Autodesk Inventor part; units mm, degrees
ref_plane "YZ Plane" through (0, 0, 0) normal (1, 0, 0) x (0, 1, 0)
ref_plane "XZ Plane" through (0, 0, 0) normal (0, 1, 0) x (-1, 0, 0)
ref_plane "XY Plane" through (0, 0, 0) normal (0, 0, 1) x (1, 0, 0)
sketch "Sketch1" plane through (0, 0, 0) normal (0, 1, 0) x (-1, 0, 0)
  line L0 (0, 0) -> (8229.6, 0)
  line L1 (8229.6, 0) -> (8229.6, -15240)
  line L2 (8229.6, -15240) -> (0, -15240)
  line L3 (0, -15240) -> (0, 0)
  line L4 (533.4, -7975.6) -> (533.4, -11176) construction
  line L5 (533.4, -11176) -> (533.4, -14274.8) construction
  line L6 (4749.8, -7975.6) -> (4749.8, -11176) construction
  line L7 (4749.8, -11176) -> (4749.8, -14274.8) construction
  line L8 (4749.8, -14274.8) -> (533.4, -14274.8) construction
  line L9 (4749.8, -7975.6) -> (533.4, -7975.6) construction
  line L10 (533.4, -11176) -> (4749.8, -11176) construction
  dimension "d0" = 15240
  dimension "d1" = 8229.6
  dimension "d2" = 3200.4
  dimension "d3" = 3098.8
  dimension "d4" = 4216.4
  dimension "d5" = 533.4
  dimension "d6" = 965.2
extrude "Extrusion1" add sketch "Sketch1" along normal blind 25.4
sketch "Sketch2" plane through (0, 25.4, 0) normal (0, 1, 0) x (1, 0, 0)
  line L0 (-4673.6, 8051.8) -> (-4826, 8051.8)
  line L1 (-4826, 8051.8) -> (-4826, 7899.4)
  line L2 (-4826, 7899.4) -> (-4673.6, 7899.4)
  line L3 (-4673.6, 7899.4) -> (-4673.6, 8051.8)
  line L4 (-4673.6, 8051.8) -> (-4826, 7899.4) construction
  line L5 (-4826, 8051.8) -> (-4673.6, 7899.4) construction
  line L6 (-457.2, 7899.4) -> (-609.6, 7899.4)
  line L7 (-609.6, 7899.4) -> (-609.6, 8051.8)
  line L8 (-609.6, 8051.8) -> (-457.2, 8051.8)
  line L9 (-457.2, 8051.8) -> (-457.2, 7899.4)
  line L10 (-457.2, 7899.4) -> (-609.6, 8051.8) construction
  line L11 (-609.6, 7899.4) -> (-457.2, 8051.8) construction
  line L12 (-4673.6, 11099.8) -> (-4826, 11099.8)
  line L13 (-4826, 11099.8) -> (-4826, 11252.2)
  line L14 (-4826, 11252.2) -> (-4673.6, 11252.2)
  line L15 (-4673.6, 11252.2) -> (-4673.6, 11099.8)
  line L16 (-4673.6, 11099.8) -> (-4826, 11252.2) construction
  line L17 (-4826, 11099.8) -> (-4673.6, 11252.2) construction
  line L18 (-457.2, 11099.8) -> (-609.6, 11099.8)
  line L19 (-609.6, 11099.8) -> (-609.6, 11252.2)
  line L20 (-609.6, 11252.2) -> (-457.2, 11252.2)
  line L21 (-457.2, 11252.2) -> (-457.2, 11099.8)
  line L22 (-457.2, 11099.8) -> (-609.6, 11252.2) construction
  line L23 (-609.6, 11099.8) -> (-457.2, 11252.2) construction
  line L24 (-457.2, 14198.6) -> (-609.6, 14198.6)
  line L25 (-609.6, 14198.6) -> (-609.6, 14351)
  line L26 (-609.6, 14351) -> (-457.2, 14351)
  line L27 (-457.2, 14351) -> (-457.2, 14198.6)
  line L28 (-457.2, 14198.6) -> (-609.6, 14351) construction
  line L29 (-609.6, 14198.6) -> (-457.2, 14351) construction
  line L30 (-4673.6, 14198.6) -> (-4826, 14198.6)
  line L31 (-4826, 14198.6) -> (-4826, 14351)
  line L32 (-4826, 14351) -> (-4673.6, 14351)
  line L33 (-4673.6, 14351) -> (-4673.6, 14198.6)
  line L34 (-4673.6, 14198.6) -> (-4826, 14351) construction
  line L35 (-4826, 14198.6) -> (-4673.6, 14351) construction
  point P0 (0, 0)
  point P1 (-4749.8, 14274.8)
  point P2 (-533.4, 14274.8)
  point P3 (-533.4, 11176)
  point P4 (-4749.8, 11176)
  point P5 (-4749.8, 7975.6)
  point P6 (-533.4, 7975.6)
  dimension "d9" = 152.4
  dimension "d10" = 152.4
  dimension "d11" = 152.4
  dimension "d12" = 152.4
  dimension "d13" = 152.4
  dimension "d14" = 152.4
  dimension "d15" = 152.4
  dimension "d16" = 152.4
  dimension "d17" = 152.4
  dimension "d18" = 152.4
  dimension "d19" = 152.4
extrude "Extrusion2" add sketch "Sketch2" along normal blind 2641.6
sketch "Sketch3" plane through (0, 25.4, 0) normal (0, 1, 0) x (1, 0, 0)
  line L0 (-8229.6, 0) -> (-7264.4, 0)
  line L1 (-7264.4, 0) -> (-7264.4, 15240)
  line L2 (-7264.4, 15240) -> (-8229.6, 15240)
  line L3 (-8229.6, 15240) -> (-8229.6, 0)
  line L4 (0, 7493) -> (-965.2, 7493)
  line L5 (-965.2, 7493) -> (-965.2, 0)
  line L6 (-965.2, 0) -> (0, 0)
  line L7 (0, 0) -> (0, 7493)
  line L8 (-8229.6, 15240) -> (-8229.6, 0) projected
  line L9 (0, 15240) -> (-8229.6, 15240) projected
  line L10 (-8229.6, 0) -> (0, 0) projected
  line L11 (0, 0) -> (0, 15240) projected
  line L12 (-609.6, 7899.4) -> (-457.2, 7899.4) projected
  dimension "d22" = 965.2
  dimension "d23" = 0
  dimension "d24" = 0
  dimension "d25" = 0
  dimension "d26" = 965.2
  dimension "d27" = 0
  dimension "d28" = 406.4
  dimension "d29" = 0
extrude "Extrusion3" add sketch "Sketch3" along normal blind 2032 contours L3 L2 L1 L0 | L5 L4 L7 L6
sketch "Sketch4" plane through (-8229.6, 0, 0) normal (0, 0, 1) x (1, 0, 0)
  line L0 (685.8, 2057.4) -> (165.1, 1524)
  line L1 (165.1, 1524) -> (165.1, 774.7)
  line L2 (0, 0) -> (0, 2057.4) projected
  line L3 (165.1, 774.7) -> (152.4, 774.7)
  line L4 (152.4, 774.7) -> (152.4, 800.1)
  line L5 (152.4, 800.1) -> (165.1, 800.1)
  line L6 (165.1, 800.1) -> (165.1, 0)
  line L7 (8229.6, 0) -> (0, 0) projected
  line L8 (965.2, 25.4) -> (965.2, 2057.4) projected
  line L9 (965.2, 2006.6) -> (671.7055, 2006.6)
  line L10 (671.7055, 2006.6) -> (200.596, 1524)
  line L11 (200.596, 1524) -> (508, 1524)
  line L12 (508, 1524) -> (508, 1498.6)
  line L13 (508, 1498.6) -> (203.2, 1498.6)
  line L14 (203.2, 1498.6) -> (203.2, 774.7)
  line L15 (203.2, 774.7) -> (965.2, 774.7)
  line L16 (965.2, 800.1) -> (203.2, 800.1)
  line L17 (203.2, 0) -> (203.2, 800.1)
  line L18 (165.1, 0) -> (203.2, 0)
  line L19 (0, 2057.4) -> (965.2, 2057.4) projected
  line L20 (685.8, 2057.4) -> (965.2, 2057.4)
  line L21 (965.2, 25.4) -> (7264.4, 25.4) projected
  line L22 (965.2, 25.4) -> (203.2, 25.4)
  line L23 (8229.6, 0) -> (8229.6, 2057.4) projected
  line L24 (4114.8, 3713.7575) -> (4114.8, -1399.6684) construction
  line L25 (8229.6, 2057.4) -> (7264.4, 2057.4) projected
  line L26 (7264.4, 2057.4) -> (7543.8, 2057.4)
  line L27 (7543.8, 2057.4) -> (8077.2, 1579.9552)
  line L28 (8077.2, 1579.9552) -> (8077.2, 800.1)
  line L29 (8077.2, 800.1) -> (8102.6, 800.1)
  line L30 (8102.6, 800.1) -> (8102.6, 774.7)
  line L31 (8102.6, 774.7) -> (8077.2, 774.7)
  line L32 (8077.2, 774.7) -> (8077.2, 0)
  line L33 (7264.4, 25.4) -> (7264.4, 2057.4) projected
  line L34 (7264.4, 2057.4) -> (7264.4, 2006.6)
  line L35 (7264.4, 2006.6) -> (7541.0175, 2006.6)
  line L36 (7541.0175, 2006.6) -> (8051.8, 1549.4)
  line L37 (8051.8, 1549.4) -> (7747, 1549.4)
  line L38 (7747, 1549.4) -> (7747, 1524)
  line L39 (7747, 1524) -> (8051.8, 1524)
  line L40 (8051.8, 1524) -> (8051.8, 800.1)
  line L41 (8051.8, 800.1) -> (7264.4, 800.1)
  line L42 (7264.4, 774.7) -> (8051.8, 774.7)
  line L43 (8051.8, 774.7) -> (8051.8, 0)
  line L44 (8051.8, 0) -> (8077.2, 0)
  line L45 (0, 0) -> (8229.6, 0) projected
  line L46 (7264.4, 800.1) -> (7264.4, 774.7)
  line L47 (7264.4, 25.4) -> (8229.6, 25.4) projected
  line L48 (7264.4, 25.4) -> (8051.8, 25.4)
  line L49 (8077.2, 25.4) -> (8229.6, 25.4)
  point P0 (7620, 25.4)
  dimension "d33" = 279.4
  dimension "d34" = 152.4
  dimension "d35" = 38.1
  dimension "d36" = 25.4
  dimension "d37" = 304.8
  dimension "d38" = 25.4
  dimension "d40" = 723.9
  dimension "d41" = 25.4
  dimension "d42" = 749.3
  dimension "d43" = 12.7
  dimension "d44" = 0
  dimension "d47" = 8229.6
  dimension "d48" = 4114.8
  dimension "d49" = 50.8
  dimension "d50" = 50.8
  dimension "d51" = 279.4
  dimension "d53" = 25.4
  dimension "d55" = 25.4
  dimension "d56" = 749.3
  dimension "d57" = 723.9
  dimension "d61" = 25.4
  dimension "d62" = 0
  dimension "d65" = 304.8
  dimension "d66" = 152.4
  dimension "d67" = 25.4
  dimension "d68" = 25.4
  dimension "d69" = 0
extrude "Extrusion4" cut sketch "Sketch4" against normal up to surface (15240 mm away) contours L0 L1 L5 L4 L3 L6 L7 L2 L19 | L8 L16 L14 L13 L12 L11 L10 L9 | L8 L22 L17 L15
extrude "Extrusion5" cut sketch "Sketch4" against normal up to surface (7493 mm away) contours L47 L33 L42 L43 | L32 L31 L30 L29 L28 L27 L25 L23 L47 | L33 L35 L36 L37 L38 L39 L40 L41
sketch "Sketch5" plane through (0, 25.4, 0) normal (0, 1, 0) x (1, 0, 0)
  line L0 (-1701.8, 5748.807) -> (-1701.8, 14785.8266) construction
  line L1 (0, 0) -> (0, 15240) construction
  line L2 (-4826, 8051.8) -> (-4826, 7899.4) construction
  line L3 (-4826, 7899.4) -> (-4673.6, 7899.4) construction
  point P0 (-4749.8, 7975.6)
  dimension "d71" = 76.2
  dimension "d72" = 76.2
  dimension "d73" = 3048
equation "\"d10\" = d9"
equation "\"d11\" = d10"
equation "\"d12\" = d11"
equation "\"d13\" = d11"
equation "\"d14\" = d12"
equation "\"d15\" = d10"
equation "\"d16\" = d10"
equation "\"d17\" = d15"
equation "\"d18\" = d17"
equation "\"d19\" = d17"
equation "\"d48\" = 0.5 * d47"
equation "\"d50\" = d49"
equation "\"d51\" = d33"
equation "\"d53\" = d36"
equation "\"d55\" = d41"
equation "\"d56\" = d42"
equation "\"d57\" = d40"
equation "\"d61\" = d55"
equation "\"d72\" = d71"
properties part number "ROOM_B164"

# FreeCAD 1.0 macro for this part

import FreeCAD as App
import Part
import Sketcher
Q = App.Units.Quantity


def add_polygon(sketch, points):
    """Adds a closed chain of lines whose ends are joined by coincident constraints."""
    first, n = sketch.GeometryCount, len(points)
    for a, b in zip(points, points[1:] + points[:1]):
        sketch.addGeometry(Part.LineSegment(App.Vector(*a, 0), App.Vector(*b, 0)), False)
    for i in range(n):
        sketch.addConstraint(Sketcher.Constraint("Coincident", first + i, 2, first + (i + 1) % n, 1))

doc = App.newDocument("Part")
body = doc.addObject("PartDesign::Body", "Body")

# Sketch on XZ plane
sketch1 = doc.addObject("Sketcher::SketchObject", "Sketch")
body.addObject(sketch1)
sketch1.AttachmentSupport = (doc.XZ_Plane, [""])
sketch1.MapMode = "FlatFace"
add_polygon(sketch1, [(-8230, 0), (0, 0), (0, -15240), (-8230, -15240)])  # lines 0-3
sketch1.addConstraint([
    Sketcher.Constraint("Horizontal", 0),
    Sketcher.Constraint("Vertical", 1),
    Sketcher.Constraint("Horizontal", 2),
    Sketcher.Constraint("Vertical", 3),
    Sketcher.Constraint("Coincident", 0, 2, -1, 1),
    Sketcher.Constraint("DistanceX", 0, 1, 0, 2, Q("324 in")),
    Sketcher.Constraint("DistanceY", 1, 2, 1, 1, Q("600 in")),
])
pad1 = doc.addObject("PartDesign::Pad", "Pad")
body.addObject(pad1)
pad1.Profile = sketch1
pad1.Length = Q("1 in")
pad1.Reversed = True

# Sketch on XZ plane
sketch2 = doc.addObject("Sketcher::SketchObject", "Sketch001")
body.addObject(sketch2)
sketch2.AttachmentSupport = (doc.XZ_Plane, [""])
sketch2.MapMode = "FlatFace"
sketch2.AttachmentOffset = App.Placement(App.Vector(0, 0, -1 * 25.4), App.Rotation())
add_polygon(sketch2, [(-4674, -7899), (-4674, -8052), (-4826, -8052), (-4826, -7899)])  # lines 0-3
add_polygon(sketch2, [(-610, -7899), (-457, -7899), (-457, -8052), (-610, -8052)])  # lines 4-7
add_polygon(sketch2, [(-4826, -11100), (-4674, -11100), (-4674, -11252), (-4826, -11252)])  # lines 8-11
add_polygon(sketch2, [(-610, -11100), (-457, -11100), (-457, -11252), (-610, -11252)])  # lines 12-15
add_polygon(sketch2, [(-610, -14199), (-457, -14199), (-457, -14351), (-610, -14351)])  # lines 16-19
add_polygon(sketch2, [(-4826, -14199), (-4674, -14199), (-4674, -14351), (-4826, -14351)])  # lines 20-23
sketch2.addConstraint([
    Sketcher.Constraint("Vertical", 0),
    Sketcher.Constraint("Horizontal", 1),
    Sketcher.Constraint("Vertical", 2),
    Sketcher.Constraint("Horizontal", 3),
    Sketcher.Constraint("Horizontal", 4),
    Sketcher.Constraint("Vertical", 5),
    Sketcher.Constraint("Horizontal", 6),
    Sketcher.Constraint("Vertical", 7),
    Sketcher.Constraint("Horizontal", 8),
    Sketcher.Constraint("Vertical", 9),
    Sketcher.Constraint("Horizontal", 10),
    Sketcher.Constraint("Vertical", 11),
    Sketcher.Constraint("Horizontal", 12),
    Sketcher.Constraint("Vertical", 13),
    Sketcher.Constraint("Horizontal", 14),
    Sketcher.Constraint("Vertical", 15),
    Sketcher.Constraint("Horizontal", 16),
    Sketcher.Constraint("Vertical", 17),
    Sketcher.Constraint("Horizontal", 18),
    Sketcher.Constraint("Vertical", 19),
    Sketcher.Constraint("Horizontal", 20),
    Sketcher.Constraint("Vertical", 21),
    Sketcher.Constraint("Horizontal", 22),
    Sketcher.Constraint("Vertical", 23),
    Sketcher.Constraint("Horizontal", 3, 2, 4, 2),
    Sketcher.Constraint("Horizontal", 1, 2, 5, 2),
    Sketcher.Constraint("Horizontal", 11, 2, 12, 2),
    Sketcher.Constraint("Horizontal", 10, 2, 13, 2),
    Sketcher.Constraint("Horizontal", 19, 2, 20, 2),
    Sketcher.Constraint("Horizontal", 18, 2, 21, 2),
    Sketcher.Constraint("Vertical", 3, 2, 8, 2),
    Sketcher.Constraint("Vertical", 2, 2, 10, 2),
    Sketcher.Constraint("Vertical", 5, 2, 12, 2),
    Sketcher.Constraint("Vertical", 7, 2, 14, 2),
    Sketcher.Constraint("Vertical", 13, 2, 16, 2),
    Sketcher.Constraint("Vertical", 15, 2, 18, 2),
    Sketcher.Constraint("Vertical", 9, 2, 20, 2),
    Sketcher.Constraint("Vertical", 11, 2, 22, 2),
    Sketcher.Constraint("Equal", 3, 4),
    Sketcher.Constraint("Equal", 22, 0),
    Sketcher.Constraint("Equal", 7, 9),
    Sketcher.Constraint("Equal", 15, 17),
    Sketcher.Constraint("DistanceX", 1, 2, 1, 1, Q("6 in")),
    Sketcher.Constraint("DistanceX", 0, 2, -1, 1, Q("184 in")),
    Sketcher.Constraint("DistanceY", 0, 2, -1, 1, Q("317 in")),
    Sketcher.Constraint("DistanceX", 4, 2, -1, 1, Q("18 in")),
    Sketcher.Constraint("DistanceY", 8, 2, -1, 1, Q("437 in")),
    Sketcher.Constraint("DistanceY", 16, 2, -1, 1, Q("559 in")),
])
pad2 = doc.addObject("PartDesign::Pad", "Pad001")
body.addObject(pad2)
pad2.Profile = sketch2
pad2.Length = Q("104 in")
pad2.Reversed = True

# Sketch on XZ plane
sketch3 = doc.addObject("Sketcher::SketchObject", "Sketch002")
body.addObject(sketch3)
sketch3.AttachmentSupport = (doc.XZ_Plane, [""])
sketch3.MapMode = "FlatFace"
sketch3.AttachmentOffset = App.Placement(App.Vector(0, 0, -1 * 25.4), App.Rotation())
add_polygon(sketch3, [(-8230, -15240), (-8230, 0), (-7264, 0), (-7264, -15240)])  # lines 0-3
add_polygon(sketch3, [(-965, -7493), (-965, 0), (0, 0), (0, -7493)])  # lines 4-7
sketch3.addConstraint([
    Sketcher.Constraint("Vertical", 0),
    Sketcher.Constraint("Horizontal", 1),
    Sketcher.Constraint("Vertical", 2),
    Sketcher.Constraint("Horizontal", 3),
    Sketcher.Constraint("Vertical", 4),
    Sketcher.Constraint("Horizontal", 5),
    Sketcher.Constraint("Vertical", 6),
    Sketcher.Constraint("Horizontal", 7),
    Sketcher.Constraint("Coincident", 5, 2, -1, 1),
    Sketcher.Constraint("PointOnObject", 0, 2, -1),
    Sketcher.Constraint("Equal", 3, 5),
    Sketcher.Constraint("DistanceX", 1, 1, 1, 2, Q("38 in")),
    Sketcher.Constraint("DistanceY", 0, 1, 0, 2, Q("600 in")),
    Sketcher.Constraint("DistanceY", 4, 1, 4, 2, Q("295 in")),
    Sketcher.Constraint("DistanceX", 0, 2, -1, 1, Q("324 in")),
])
pad3 = doc.addObject("PartDesign::Pad", "Pad002")
body.addObject(pad3)
pad3.Profile = sketch3
pad3.Length = Q("80 in")
pad3.Reversed = True

# Sketch on XY plane
sketch4 = doc.addObject("Sketcher::SketchObject", "Sketch003")
body.addObject(sketch4)
sketch4.AttachmentSupport = (doc.XY_Plane, [""])
sketch4.MapMode = "FlatFace"
add_polygon(sketch4, [(-8064, 1524), (-7544, 2057), (-8230, 2057), (-8230, 0), (-8064, 0), (-8064, 775), (-8077, 775), (-8077, 800), (-8064, 800)])  # lines 0-8
add_polygon(sketch4, [(-7264, 800), (-7264, 2007), (-7558, 2007), (-8029, 1524), (-7722, 1524), (-7722, 1499), (-8026, 1499), (-8026, 800)])  # lines 9-16
add_polygon(sketch4, [(-7264, 25), (-7264, 775), (-8026, 775), (-8026, 25)])  # lines 17-20
sketch4.addConstraint([
    Sketcher.Constraint("Horizontal", 1),
    Sketcher.Constraint("Vertical", 2),
    Sketcher.Constraint("Horizontal", 3),
    Sketcher.Constraint("Vertical", 4),
    Sketcher.Constraint("Horizontal", 5),
    Sketcher.Constraint("Vertical", 6),
    Sketcher.Constraint("Horizontal", 7),
    Sketcher.Constraint("Vertical", 8),
    Sketcher.Constraint("Vertical", 9),
    Sketcher.Constraint("Horizontal", 10),
    Sketcher.Constraint("Horizontal", 12),
    Sketcher.Constraint("Vertical", 13),
    Sketcher.Constraint("Horizontal", 14),
    Sketcher.Constraint("Vertical", 15),
    Sketcher.Constraint("Horizontal", 16),
    Sketcher.Constraint("Vertical", 17),
    Sketcher.Constraint("Horizontal", 18),
    Sketcher.Constraint("Vertical", 19),
    Sketcher.Constraint("Horizontal", 20),
    Sketcher.Constraint("PointOnObject", 2, 2, -1),
    Sketcher.Constraint("Parallel", 0, 11),
    Sketcher.Constraint("Horizontal", 8, 2, 11, 2),
    Sketcher.Constraint("Horizontal", 7, 2, 15, 2),
    Sketcher.Constraint("Horizontal", 5, 2, 17, 2),
    Sketcher.Constraint("Vertical", 4, 2, 7, 2),
    Sketcher.Constraint("Vertical", 16, 2, 17, 2),
    Sketcher.Constraint("Vertical", 15, 2, 18, 2),
    Sketcher.Constraint("Equal", 6, 13),
    Sketcher.Constraint("DistanceX", 14, 2, 14, 1, Q("12 in")),
    Sketcher.Constraint("DistanceY", 6, 1, 6, 2, Q("1 in")),
    Sketcher.Constraint("DistanceX", 5, 2, 5, 1, Q("0.5 in")),
    Sketcher.Constraint("DistanceY", 8, 1, 8, 2, Q("28.5 in")),
    Sketcher.Constraint("DistanceY", 17, 1, 17, 2, Q("29.5 in")),
    Sketcher.Constraint("DistanceX", 1, 2, -1, 1, Q("324 in")),
    Sketcher.Constraint("DistanceY", -1, 1, 19, 2, Q("1 in")),
    Sketcher.Constraint("DistanceX", 2, 2, 5, 2, Q("6 in")),
    Sketcher.Constraint("DistanceX", 0, 2, 9, 2, Q("11 in")),
    Sketcher.Constraint("DistanceY", 9, 2, 0, 2, Q("2 in")),
    Sketcher.Constraint("DistanceX", 6, 2, 15, 2, Q("2 in")),
    Sketcher.Constraint("DistanceX", 1, 2, 1, 1, Q("27 in")),
    Sketcher.Constraint("DistanceY", 2, 2, 2, 1, Q("81 in")),
    Sketcher.Constraint("DistanceX", 10, 2, 10, 1, Q("11.5549 in")),
])
pocket1 = doc.addObject("PartDesign::Pocket", "Pocket")
body.addObject(pocket1)
pocket1.Profile = sketch4
pocket1.Length = Q("600 in")

# Sketch on XY plane
sketch5 = doc.addObject("Sketcher::SketchObject", "Sketch004")
body.addObject(sketch5)
sketch5.AttachmentSupport = (doc.XY_Plane, [""])
sketch5.MapMode = "FlatFace"
add_polygon(sketch5, [(-965, 25), (-178, 25), (-178, 775), (-965, 775)])  # lines 0-3
add_polygon(sketch5, [(-152, 775), (-152, 25), (0, 25), (0, 2057), (-686, 2057), (-152, 1580), (-152, 800), (-127, 800), (-127, 775)])  # lines 4-12
add_polygon(sketch5, [(-965, 2007), (-965, 800), (-178, 800), (-178, 1524), (-483, 1524), (-483, 1549), (-178, 1549), (-689, 2007)])  # lines 13-20
sketch5.addConstraint([
    Sketcher.Constraint("Horizontal", 0),
    Sketcher.Constraint("Vertical", 1),
    Sketcher.Constraint("Horizontal", 2),
    Sketcher.Constraint("Vertical", 3),
    Sketcher.Constraint("Vertical", 4),
    Sketcher.Constraint("Horizontal", 5),
    Sketcher.Constraint("Vertical", 6),
    Sketcher.Constraint("Horizontal", 7),
    Sketcher.Constraint("Vertical", 9),
    Sketcher.Constraint("Horizontal", 10),
    Sketcher.Constraint("Vertical", 11),
    Sketcher.Constraint("Horizontal", 12),
    Sketcher.Constraint("Vertical", 13),
    Sketcher.Constraint("Horizontal", 14),
    Sketcher.Constraint("Vertical", 15),
    Sketcher.Constraint("Horizontal", 16),
    Sketcher.Constraint("Vertical", 17),
    Sketcher.Constraint("Horizontal", 18),
    Sketcher.Constraint("Horizontal", 20),
    Sketcher.Constraint("PointOnObject", 5, 2, -2),
    Sketcher.Constraint("Parallel", 8, 19),
    Sketcher.Constraint("Horizontal", 3, 2, 4, 2),
    Sketcher.Constraint("Horizontal", 2, 2, 11, 2),
    Sketcher.Constraint("Horizontal", 10, 2, 13, 2),
    Sketcher.Constraint("Vertical", 4, 2, 8, 2),
    Sketcher.Constraint("Vertical", 3, 2, 13, 2),
    Sketcher.Constraint("Vertical", 1, 2, 14, 2),
    Sketcher.Constraint("Vertical", 15, 2, 18, 2),
    Sketcher.Constraint("Equal", 12, 11),
    Sketcher.Constraint("Equal", 11, 17),
    Sketcher.Constraint("DistanceX", 5, 1, 5, 2, Q("6 in")),
    Sketcher.Constraint("DistanceX", 10, 1, 10, 2, Q("1 in")),
    Sketcher.Constraint("DistanceX", 16, 2, 16, 1, Q("12 in")),
    Sketcher.Constraint("DistanceY", 1, 1, 1, 2, Q("29.5 in")),
    Sketcher.Constraint("DistanceY", 15, 1, 15, 2, Q("28.5 in")),
    Sketcher.Constraint("DistanceY", -1, 1, 0, 2, Q("1 in")),
    Sketcher.Constraint("DistanceX", 0, 2, 4, 2, Q("1 in")),
    Sketcher.Constraint("DistanceX", 2, 2, 7, 2, Q("11 in")),
    Sketcher.Constraint("DistanceY", 19, 2, 7, 2, Q("2 in")),
    Sketcher.Constraint("DistanceX", 0, 1, 0, 2, Q("31 in")),
    Sketcher.Constraint("DistanceY", 6, 1, 6, 2, Q("80 in")),
    Sketcher.Constraint("DistanceX", 20, 2, 20, 1, Q("276.6175 mm")),
])
pocket2 = doc.addObject("PartDesign::Pocket", "Pocket001")
body.addObject(pocket2)
pocket2.Profile = sketch5
pocket2.Length = Q("295 in")

doc.recompute()
